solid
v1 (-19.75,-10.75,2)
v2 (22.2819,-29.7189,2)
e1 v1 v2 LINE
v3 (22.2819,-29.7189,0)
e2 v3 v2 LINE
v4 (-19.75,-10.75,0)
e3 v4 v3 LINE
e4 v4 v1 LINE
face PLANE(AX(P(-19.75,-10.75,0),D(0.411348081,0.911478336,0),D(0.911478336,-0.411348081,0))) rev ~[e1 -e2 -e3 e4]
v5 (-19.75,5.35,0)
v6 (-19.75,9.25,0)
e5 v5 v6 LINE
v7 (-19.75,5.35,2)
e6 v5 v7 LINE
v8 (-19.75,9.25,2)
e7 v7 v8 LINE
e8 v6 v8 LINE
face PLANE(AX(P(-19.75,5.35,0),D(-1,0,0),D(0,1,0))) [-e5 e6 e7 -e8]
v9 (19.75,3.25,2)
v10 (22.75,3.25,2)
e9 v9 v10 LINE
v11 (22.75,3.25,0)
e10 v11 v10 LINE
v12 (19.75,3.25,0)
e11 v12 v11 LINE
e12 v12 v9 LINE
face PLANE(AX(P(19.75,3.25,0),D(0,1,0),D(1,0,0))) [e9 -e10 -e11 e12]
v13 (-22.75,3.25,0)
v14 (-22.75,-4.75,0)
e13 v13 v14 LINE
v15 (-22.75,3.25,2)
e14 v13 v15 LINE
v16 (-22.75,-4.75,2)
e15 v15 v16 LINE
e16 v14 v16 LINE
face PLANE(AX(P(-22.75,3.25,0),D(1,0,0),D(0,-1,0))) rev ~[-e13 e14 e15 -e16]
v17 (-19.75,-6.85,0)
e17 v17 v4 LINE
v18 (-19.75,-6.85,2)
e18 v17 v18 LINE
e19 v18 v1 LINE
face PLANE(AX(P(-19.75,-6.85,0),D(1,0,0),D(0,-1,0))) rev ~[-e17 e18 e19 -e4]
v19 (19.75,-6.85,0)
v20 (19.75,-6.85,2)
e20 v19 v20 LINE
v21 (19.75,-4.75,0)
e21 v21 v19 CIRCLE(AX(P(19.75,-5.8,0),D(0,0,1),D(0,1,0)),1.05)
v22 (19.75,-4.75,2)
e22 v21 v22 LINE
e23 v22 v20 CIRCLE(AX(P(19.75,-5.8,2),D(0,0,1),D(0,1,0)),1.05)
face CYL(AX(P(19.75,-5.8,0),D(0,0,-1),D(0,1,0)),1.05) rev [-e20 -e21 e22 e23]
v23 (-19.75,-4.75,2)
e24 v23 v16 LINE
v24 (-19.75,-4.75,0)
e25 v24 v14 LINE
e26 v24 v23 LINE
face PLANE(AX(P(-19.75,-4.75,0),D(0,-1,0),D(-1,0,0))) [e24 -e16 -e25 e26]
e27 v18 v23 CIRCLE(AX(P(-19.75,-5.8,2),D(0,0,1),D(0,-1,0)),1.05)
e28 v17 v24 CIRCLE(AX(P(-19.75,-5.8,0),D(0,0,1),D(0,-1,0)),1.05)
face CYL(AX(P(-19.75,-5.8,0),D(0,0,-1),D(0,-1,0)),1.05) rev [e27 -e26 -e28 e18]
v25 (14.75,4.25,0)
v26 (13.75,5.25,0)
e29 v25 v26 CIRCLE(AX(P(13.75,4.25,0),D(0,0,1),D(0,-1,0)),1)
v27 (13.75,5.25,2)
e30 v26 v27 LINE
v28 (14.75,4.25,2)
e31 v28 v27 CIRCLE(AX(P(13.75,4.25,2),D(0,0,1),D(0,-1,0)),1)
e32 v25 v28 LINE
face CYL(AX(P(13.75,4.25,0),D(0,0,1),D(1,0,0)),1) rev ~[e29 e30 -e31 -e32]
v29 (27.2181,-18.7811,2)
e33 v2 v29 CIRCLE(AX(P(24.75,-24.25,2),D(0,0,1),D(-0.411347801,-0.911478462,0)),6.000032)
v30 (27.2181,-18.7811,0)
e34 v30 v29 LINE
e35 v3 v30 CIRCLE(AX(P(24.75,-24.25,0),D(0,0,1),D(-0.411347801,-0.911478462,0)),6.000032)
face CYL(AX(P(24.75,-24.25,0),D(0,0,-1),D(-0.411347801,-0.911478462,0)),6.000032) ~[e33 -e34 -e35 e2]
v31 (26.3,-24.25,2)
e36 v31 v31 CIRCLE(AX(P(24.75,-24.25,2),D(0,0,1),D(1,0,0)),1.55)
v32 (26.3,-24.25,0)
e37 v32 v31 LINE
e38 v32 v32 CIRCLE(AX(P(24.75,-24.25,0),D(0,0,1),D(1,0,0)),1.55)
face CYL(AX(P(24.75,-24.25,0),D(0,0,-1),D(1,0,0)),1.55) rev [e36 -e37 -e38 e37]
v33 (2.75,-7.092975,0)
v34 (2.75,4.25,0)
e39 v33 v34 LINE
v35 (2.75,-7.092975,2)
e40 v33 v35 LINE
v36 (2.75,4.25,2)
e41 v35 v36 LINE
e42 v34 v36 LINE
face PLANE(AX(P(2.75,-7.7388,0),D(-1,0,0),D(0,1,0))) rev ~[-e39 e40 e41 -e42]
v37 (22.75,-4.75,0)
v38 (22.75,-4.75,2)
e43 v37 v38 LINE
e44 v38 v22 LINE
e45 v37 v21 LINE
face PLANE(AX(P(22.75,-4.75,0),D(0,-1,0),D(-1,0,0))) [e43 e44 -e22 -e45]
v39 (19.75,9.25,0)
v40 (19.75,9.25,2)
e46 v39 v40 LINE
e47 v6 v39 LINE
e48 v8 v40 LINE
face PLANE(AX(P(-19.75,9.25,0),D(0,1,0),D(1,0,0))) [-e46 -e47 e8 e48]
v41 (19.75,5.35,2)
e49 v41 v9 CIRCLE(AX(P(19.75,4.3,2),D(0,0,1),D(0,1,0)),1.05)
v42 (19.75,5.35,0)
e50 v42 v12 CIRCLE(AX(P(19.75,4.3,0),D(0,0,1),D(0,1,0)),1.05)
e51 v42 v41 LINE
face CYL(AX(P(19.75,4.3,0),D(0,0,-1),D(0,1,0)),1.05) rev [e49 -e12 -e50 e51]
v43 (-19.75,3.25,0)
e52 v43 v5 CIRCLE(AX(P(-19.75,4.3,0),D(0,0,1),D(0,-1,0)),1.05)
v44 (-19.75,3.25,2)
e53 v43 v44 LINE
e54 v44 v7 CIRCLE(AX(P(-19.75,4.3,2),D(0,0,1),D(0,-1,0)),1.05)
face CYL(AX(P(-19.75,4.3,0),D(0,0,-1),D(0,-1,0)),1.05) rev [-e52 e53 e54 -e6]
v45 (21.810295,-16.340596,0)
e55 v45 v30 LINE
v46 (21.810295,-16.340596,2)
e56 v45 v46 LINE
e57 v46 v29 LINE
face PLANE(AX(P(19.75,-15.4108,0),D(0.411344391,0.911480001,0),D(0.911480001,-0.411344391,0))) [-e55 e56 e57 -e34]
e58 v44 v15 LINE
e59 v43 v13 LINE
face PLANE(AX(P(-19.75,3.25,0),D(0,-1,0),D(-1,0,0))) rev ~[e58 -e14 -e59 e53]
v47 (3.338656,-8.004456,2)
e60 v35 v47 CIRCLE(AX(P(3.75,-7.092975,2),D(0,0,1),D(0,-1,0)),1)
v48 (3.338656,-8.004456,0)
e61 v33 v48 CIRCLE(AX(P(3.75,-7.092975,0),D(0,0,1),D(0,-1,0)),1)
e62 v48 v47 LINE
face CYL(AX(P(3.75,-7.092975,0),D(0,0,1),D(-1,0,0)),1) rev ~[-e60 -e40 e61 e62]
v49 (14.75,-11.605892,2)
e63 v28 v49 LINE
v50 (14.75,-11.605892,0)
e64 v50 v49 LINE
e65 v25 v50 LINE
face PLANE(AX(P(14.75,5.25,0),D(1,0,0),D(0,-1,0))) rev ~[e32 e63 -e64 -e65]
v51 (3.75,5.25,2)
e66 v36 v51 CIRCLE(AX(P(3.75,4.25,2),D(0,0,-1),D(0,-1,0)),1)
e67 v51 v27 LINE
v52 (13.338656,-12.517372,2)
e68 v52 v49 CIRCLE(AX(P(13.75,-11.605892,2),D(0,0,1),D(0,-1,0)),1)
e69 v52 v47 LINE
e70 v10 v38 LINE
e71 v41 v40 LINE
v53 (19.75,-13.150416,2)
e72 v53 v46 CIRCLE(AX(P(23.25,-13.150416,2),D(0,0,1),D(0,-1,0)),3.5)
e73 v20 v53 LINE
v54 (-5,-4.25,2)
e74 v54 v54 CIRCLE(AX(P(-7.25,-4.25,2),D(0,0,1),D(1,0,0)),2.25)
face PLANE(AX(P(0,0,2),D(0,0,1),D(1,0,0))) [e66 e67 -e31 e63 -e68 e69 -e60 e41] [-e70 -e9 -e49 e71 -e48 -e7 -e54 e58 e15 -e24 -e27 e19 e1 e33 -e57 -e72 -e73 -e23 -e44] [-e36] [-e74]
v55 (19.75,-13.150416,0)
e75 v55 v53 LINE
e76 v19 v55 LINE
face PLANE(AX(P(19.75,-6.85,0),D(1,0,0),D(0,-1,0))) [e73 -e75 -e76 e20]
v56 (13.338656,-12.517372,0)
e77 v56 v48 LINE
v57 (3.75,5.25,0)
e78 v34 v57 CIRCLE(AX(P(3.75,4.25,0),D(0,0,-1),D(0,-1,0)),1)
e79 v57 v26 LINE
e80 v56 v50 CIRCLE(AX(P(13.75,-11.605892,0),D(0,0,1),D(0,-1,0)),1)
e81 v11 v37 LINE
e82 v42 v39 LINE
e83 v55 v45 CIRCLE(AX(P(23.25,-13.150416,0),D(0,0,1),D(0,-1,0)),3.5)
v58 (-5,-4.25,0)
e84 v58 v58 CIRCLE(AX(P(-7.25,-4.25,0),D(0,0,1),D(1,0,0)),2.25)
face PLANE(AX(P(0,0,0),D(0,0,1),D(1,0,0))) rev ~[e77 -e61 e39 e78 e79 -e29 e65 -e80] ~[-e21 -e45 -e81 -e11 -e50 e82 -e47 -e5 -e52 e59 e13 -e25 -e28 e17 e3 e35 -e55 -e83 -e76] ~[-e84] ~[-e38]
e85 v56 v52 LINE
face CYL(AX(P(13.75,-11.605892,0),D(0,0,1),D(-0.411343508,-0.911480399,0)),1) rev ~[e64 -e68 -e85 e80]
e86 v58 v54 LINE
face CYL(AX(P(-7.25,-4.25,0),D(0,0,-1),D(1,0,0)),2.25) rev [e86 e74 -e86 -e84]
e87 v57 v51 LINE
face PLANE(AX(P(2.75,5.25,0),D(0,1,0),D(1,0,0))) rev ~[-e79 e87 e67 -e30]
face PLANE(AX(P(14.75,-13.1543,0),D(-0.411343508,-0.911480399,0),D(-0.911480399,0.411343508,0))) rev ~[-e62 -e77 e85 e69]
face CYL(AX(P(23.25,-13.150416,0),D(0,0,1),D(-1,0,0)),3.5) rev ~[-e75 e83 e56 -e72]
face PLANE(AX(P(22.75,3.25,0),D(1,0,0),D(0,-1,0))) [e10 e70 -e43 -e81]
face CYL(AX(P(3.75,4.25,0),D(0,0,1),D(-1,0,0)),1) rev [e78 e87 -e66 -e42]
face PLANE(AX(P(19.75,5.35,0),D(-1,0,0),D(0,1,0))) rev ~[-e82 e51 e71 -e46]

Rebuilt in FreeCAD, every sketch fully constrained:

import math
import FreeCAD as App
import Part
import Sketcher
from FreeCAD import Vector
Q = App.Units.Quantity


def edges_at(feature, points):
    """Names of the edges that pass closest to the given points."""
    edges = feature.Shape.Edges
    near = lambda p: min(range(len(edges)), key=lambda i: edges[i].distToShape(Part.Vertex(*p))[0])
    return sorted({f"Edge{near(p) + 1}" for p in points})

doc = App.newDocument("Part")
body = doc.addObject("PartDesign::Body", "Body")

sketch1 = doc.addObject("Sketcher::SketchObject", "Sketch")
body.addObject(sketch1)
sketch1.AttachmentSupport = (doc.XY_Plane, [""])
sketch1.MapMode = "FlatFace"
sketch1.addGeometry([
    Part.ArcOfCircle(Part.Circle(Vector(-19.8, 4.3, 0), Vector(0, 0, 1), 1), math.radians(-90), math.radians(90)),
    Part.LineSegment(Vector(-19.8, 3.2, 0), Vector(-22.8, 3.2, 0)),
    Part.LineSegment(Vector(-22.8, 3.2, 0), Vector(-22.8, -4.8, 0)),
    Part.LineSegment(Vector(-22.8, -4.8, 0), Vector(-19.8, -4.8, 0)),
    Part.ArcOfCircle(Part.Circle(Vector(-19.8, -5.8, 0), Vector(0, 0, 1), 1), math.radians(-90), math.radians(90)),
    Part.LineSegment(Vector(-19.8, -6.8, 0), Vector(-19.8, -10.8, 0)),
    Part.LineSegment(Vector(-19.8, -10.8, 0), Vector(22.3, -29.7, 0)),
    Part.ArcOfCircle(Part.Circle(Vector(24.8, -24.2, 0), Vector(0, 0, 1), 6), math.radians(-114), math.radians(66)),
    Part.LineSegment(Vector(27.2, -18.8, 0), Vector(19.8, -15.4, 0)),
    Part.LineSegment(Vector(19.8, -15.4, 0), Vector(19.8, -6.8, 0)),
    Part.ArcOfCircle(Part.Circle(Vector(19.8, -5.8, 0), Vector(0, 0, 1), 1), math.radians(90), math.radians(270)),
    Part.LineSegment(Vector(19.8, -4.8, 0), Vector(22.8, -4.8, 0)),
    Part.LineSegment(Vector(22.8, -4.8, 0), Vector(22.8, 3.2, 0)),
    Part.LineSegment(Vector(22.8, 3.2, 0), Vector(19.8, 3.2, 0)),
    Part.ArcOfCircle(Part.Circle(Vector(19.8, 4.3, 0), Vector(0, 0, 1), 1), math.radians(90), math.radians(270)),
    Part.LineSegment(Vector(19.8, 5.3, 0), Vector(19.8, 9.2, 0)),
    Part.LineSegment(Vector(19.8, 9.2, 0), Vector(-19.8, 9.2, 0)),
    Part.LineSegment(Vector(-19.8, 9.2, 0), Vector(-19.8, 5.3, 0)),
    Part.Circle(Vector(24.8, -24.2, 0), Vector(0, 0, 1), 1.6),
    Part.Circle(Vector(-7.2, -4.2, 0), Vector(0, 0, 1), 2.2),
    Part.LineSegment(Vector(2.8, -7.7, 0), Vector(2.8, 5.2, 0)),
    Part.LineSegment(Vector(2.8, 5.2, 0), Vector(14.8, 5.2, 0)),
    Part.LineSegment(Vector(14.8, 5.2, 0), Vector(14.8, -13.2, 0)),
    Part.LineSegment(Vector(14.8, -13.2, 0), Vector(2.8, -7.7, 0)),
], False)
sketch1.addConstraint([
    Sketcher.Constraint("Tangent", 0, 1, 1, 1),
    Sketcher.Constraint("Coincident", 1, 2, 2, 1),
    Sketcher.Constraint("Coincident", 2, 2, 3, 1),
    Sketcher.Constraint("Tangent", 3, 2, 4, 2),
    Sketcher.Constraint("Coincident", 4, 1, 5, 1),
    Sketcher.Constraint("Coincident", 5, 2, 6, 1),
    Sketcher.Constraint("Tangent", 6, 2, 7, 1),
    Sketcher.Constraint("Tangent", 7, 2, 8, 1),
    Sketcher.Constraint("Coincident", 8, 2, 9, 1),
    Sketcher.Constraint("Coincident", 9, 2, 10, 2),
    Sketcher.Constraint("Tangent", 10, 1, 11, 1),
    Sketcher.Constraint("Coincident", 11, 2, 12, 1),
    Sketcher.Constraint("Coincident", 12, 2, 13, 1),
    Sketcher.Constraint("Tangent", 13, 2, 14, 2),
    Sketcher.Constraint("Coincident", 14, 1, 15, 1),
    Sketcher.Constraint("Coincident", 15, 2, 16, 1),
    Sketcher.Constraint("Coincident", 16, 2, 17, 1),
    Sketcher.Constraint("Coincident", 17, 2, 0, 2),
    Sketcher.Constraint("Coincident", 20, 2, 21, 1),
    Sketcher.Constraint("Coincident", 21, 2, 22, 1),
    Sketcher.Constraint("Coincident", 22, 2, 23, 1),
    Sketcher.Constraint("Coincident", 23, 2, 20, 1),
    Sketcher.Constraint("Horizontal", 1),
    Sketcher.Constraint("Vertical", 2),
    Sketcher.Constraint("Horizontal", 3),
    Sketcher.Constraint("Vertical", 5),
    Sketcher.Constraint("Vertical", 9),
    Sketcher.Constraint("Horizontal", 11),
    Sketcher.Constraint("Vertical", 12),
    Sketcher.Constraint("Horizontal", 13),
    Sketcher.Constraint("Vertical", 15),
    Sketcher.Constraint("Horizontal", 16),
    Sketcher.Constraint("Vertical", 17),
    Sketcher.Constraint("Vertical", 20),
    Sketcher.Constraint("Horizontal", 21),
    Sketcher.Constraint("Vertical", 22),
    Sketcher.Constraint("Coincident", 18, 3, 7, 3),
    Sketcher.Constraint("Equal", 0, 4),
    Sketcher.Constraint("Equal", 4, 10),
    Sketcher.Constraint("Equal", 10, 14),
    Sketcher.Constraint("Symmetric", 4, 3, 10, 3, -2),
    Sketcher.Constraint("Symmetric", 0, 3, 14, 3, -2),
    Sketcher.Constraint("Parallel", 6, 8),
    Sketcher.Constraint("Parallel", 8, 23),
    Sketcher.Constraint("Vertical", 0, 3, 4, 3),
    Sketcher.Constraint("Vertical", 3, 2, 4, 1),
    Sketcher.Constraint("Vertical", 14, 3, 8, 2),
    Sketcher.Constraint("Vertical", 13, 2, 14, 1),
    Sketcher.Constraint("Vertical", 5, 2, 16, 2),
    Sketcher.Constraint("Equal", 3, 11),
    Sketcher.Constraint("Equal", 5, 15),
    Sketcher.Constraint("Radius", 7, 6.0),
    Sketcher.Constraint("Diameter", 18, 3.1),
    Sketcher.Constraint("Diameter", 19, 4.5),
    Sketcher.Constraint("DistanceX", 1, 2, 1, 1, 3.0),
    Sketcher.Constraint("DistanceX", 21, 1, 21, 2, 12.0),
    Sketcher.Constraint("DistanceY", 2, 2, 2, 1, 8.0),
    Sketcher.Constraint("Radius", 0, 1.05),
    Sketcher.Constraint("DistanceX", 16, 2, 16, 1, 39.5),
    Sketcher.Constraint("DistanceX", 10, 3, 7, 3, 5.0),
    Sketcher.Constraint("DistanceX", 19, 3, 7, 3, 32.0),
    Sketcher.Constraint("DistanceY", 7, 3, 19, 3, 20.0),
    Sketcher.Constraint("DistanceY", 5, 2, 3, 2, 6.0),
    Sketcher.Constraint("DistanceY", 20, 2, 15, 2, 4.0),
    Sketcher.Constraint("DistanceX", 21, 2, 14, 1, 5.0),
    Sketcher.Constraint("DistanceY", -1, 1, 0, 3, 4.3),
    Sketcher.Constraint("Angle", 6, Q("-24.2895 deg")),
    Sketcher.Constraint("DistanceY", 20, 1, 20, 2, 12.9888),
])
pad1 = doc.addObject("PartDesign::Pad", "Pad")
body.addObject(pad1)
pad1.Profile = sketch1
pad1.Length = 2
doc.recompute()

fillet = doc.addObject("PartDesign::Fillet", "Fillet")
body.addObject(fillet)
fillet.Base = (pad1, edges_at(pad1, [(19.75, -15.411, 1)]))
fillet.Radius = 3.5
doc.recompute()

fillet2 = doc.addObject("PartDesign::Fillet", "Fillet001")
body.addObject(fillet2)
fillet2.Base = (fillet, edges_at(fillet, [
    (2.75, 5.25, 1),
    (14.75, 5.25, 1),
    (2.75, -7.739, 1),
    (14.75, -13.154, 1),
]))
fillet2.Radius = 1

doc.recompute()
